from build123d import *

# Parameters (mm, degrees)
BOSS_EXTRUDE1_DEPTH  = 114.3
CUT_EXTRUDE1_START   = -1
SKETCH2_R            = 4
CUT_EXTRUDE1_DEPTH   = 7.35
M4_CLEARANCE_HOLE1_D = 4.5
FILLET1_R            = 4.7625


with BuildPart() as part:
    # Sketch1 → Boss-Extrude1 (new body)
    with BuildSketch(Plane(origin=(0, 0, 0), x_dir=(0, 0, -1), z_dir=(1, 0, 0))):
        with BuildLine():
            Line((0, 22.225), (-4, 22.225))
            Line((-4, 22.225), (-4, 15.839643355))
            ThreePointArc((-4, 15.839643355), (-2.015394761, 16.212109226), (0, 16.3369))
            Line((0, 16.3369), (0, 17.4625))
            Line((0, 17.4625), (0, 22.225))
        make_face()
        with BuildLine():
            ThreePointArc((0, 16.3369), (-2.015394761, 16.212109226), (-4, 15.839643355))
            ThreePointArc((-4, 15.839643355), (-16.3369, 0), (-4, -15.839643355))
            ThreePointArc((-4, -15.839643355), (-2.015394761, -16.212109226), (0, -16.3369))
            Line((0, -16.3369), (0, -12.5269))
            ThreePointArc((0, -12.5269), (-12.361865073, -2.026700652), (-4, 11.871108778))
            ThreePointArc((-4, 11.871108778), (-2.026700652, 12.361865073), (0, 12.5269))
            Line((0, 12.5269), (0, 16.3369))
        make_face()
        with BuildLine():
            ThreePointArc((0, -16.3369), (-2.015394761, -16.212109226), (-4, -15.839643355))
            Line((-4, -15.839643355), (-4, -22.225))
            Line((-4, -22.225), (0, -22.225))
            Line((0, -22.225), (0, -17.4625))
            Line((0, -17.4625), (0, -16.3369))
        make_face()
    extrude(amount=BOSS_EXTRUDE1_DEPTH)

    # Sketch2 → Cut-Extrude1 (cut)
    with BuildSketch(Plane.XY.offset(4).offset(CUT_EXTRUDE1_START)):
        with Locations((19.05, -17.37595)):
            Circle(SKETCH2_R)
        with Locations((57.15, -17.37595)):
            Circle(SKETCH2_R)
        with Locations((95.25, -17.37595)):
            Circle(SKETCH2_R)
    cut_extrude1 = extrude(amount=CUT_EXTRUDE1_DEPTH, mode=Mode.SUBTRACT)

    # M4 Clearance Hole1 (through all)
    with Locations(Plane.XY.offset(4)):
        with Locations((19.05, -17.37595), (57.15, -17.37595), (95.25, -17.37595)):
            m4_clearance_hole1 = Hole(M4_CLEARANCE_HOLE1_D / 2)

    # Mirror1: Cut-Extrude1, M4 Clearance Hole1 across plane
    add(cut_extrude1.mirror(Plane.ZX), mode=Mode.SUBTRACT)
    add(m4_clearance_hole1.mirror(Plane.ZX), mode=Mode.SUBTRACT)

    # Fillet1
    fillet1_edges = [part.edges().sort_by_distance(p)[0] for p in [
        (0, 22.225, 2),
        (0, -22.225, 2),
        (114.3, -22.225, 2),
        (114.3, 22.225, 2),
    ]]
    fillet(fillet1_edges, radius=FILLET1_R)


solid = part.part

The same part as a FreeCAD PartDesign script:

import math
import FreeCAD as App
import Part
import Sketcher
from FreeCAD import Vector


def edges_at(feature, points):
    """Names of the edges that pass closest to the given points."""
    edges = feature.Shape.Edges
    near = lambda p: min(range(len(edges)), key=lambda i: edges[i].distToShape(Part.Vertex(*p))[0])
    return sorted({f"Edge{near(p) + 1}" for p in points})

doc = App.newDocument("Part")
body = doc.addObject("PartDesign::Body", "Body")

# Sketch on YZ plane
sketch1 = body.newObject("Sketcher::SketchObject", "Sketch")
sketch1.AttachmentSupport = (doc.getObject("YZ_Plane"), [""])
sketch1.MapMode = "FlatFace"
sketch1.addGeometry(Part.LineSegment(Vector(22.2, 0, 0), Vector(22.2, 4, 0)), False)
sketch1.addGeometry(Part.LineSegment(Vector(22.2, 4, 0), Vector(15.8, 4, 0)), False)
sketch1.addGeometry(Part.ArcOfCircle(Part.Circle(Vector(0, 0, 0), Vector(0, 0, 1), 16.3), math.radians(14), math.radians(166)), False)
sketch1.addGeometry(Part.LineSegment(Vector(-15.8, 4, 0), Vector(-22.2, 4, 0)), False)
sketch1.addGeometry(Part.LineSegment(Vector(-22.2, 4, 0), Vector(-22.2, 0, 0)), False)
sketch1.addGeometry(Part.LineSegment(Vector(-22.2, 0, 0), Vector(-12.5, 0, 0)), False)
sketch1.addGeometry(Part.ArcOfCircle(Part.Circle(Vector(0, 0, 0), Vector(0, 0, 1), 12.5), math.radians(19), math.radians(180)), False)
sketch1.addGeometry(Part.ArcOfCircle(Part.Circle(Vector(0, 0, 0), Vector(0, 0, 1), 12.5), math.radians(0), math.radians(18.62)), False)
sketch1.addGeometry(Part.LineSegment(Vector(12.5, 0, 0), Vector(22.2, 0, 0)), False)
sketch1.addConstraint(Sketcher.Constraint("Coincident", 0, 2, 1, 1))
sketch1.addConstraint(Sketcher.Constraint("Coincident", 1, 2, 2, 1))
sketch1.addConstraint(Sketcher.Constraint("Coincident", 2, 2, 3, 1))
sketch1.addConstraint(Sketcher.Constraint("Coincident", 3, 2, 4, 1))
sketch1.addConstraint(Sketcher.Constraint("Coincident", 4, 2, 5, 1))
sketch1.addConstraint(Sketcher.Constraint("Coincident", 5, 2, 6, 2))
sketch1.addConstraint(Sketcher.Constraint("Tangent", 6, 1, 7, 2))
sketch1.addConstraint(Sketcher.Constraint("Coincident", 7, 1, 8, 1))
sketch1.addConstraint(Sketcher.Constraint("Coincident", 8, 2, 0, 1))
sketch1.addConstraint(Sketcher.Constraint("Vertical", 0))
sketch1.addConstraint(Sketcher.Constraint("Horizontal", 1))
sketch1.addConstraint(Sketcher.Constraint("Horizontal", 3))
sketch1.addConstraint(Sketcher.Constraint("Vertical", 4))
sketch1.addConstraint(Sketcher.Constraint("Horizontal", 5))
sketch1.addConstraint(Sketcher.Constraint("Horizontal", 8))
sketch1.addConstraint(Sketcher.Constraint("Coincident", 2, 3, -1, 1))
sketch1.addConstraint(Sketcher.Constraint("Coincident", 6, 3, -1, 1))
sketch1.addConstraint(Sketcher.Constraint("Equal", 6, 7))
sketch1.addConstraint(Sketcher.Constraint("Symmetric", 4, 2, 8, 2, -1, 1))
sketch1.addConstraint(Sketcher.Constraint("PointOnObject", 4, 2, -1))
sketch1.addConstraint(Sketcher.Constraint("Horizontal", 1, 2, 2, 2))
sketch1.addConstraint(Sketcher.Constraint("Horizontal", 3, 2, 6, 1))
sketch1.addConstraint(Sketcher.Constraint("DistanceY", 0, 1, 0, 2, 4.0))
sketch1.addConstraint(Sketcher.Constraint("Radius", 2, 16.3369))
sketch1.addConstraint(Sketcher.Constraint("Radius", 6, 12.5269))
sketch1.addConstraint(Sketcher.Constraint("DistanceX", 5, 1, 5, 2, 9.6981))
pad1 = body.newObject("PartDesign::Pad", "Pad")
pad1.Profile = sketch1
pad1.Length = 114.3

# Sketch on XY plane
sketch2 = body.newObject("Sketcher::SketchObject", "Sketch001")
sketch2.AttachmentSupport = (doc.getObject("XY_Plane"), [""])
sketch2.MapMode = "FlatFace"
sketch2.AttachmentOffset = App.Placement(Vector(0, 0, 3), App.Rotation())
sketch2.addGeometry(Part.Circle(Vector(19.1, -17.4, 0), Vector(0, 0, 1), 4), False)
sketch2.addGeometry(Part.Circle(Vector(57.1, -17.4, 0), Vector(0, 0, 1), 4), False)
sketch2.addGeometry(Part.Circle(Vector(95.2, -17.4, 0), Vector(0, 0, 1), 4), False)
sketch2.addConstraint(Sketcher.Constraint("Equal", 0, 1))
sketch2.addConstraint(Sketcher.Constraint("Equal", 1, 2))
sketch2.addConstraint(Sketcher.Constraint("Horizontal", 0, 3, 1, 3))
sketch2.addConstraint(Sketcher.Constraint("Horizontal", 1, 3, 2, 3))
sketch2.addConstraint(Sketcher.Constraint("Diameter", 0, 8.0))
sketch2.addConstraint(Sketcher.Constraint("DistanceX", 0, 3, 1, 3, 38.1))
sketch2.addConstraint(Sketcher.Constraint("DistanceX", 1, 3, 2, 3, 38.1))
sketch2.addConstraint(Sketcher.Constraint("DistanceX", -1, 1, 0, 3, 19.05))
sketch2.addConstraint(Sketcher.Constraint("DistanceY", 0, 3, -1, 1, 17.37595))
pocket1 = body.newObject("PartDesign::Pocket", "Pocket")
pocket1.Profile = sketch2
pocket1.Length = 7.35
pocket1.Reversed = True

# Sketch on XY plane
sketch3 = body.newObject("Sketcher::SketchObject", "Sketch002")
sketch3.AttachmentSupport = (doc.getObject("XY_Plane"), [""])
sketch3.MapMode = "FlatFace"
sketch3.AttachmentOffset = App.Placement(Vector(0, 0, 4), App.Rotation())
sketch3.addGeometry(Part.Circle(Vector(19.1, -17.4, 0), Vector(0, 0, 1), 2.2), False)
sketch3.addGeometry(Part.Circle(Vector(57.1, -17.4, 0), Vector(0, 0, 1), 2.2), False)
sketch3.addGeometry(Part.Circle(Vector(95.2, -17.4, 0), Vector(0, 0, 1), 2.2), False)
sketch3.addConstraint(Sketcher.Constraint("Equal", 0, 1))
sketch3.addConstraint(Sketcher.Constraint("Equal", 1, 2))
sketch3.addConstraint(Sketcher.Constraint("Horizontal", 0, 3, 1, 3))
sketch3.addConstraint(Sketcher.Constraint("Horizontal", 1, 3, 2, 3))
sketch3.addConstraint(Sketcher.Constraint("Diameter", 0, 4.5))
sketch3.addConstraint(Sketcher.Constraint("DistanceX", 0, 3, 1, 3, 38.1))
sketch3.addConstraint(Sketcher.Constraint("DistanceX", 1, 3, 2, 3, 38.1))
sketch3.addConstraint(Sketcher.Constraint("DistanceX", -1, 1, 0, 3, 19.05))
sketch3.addConstraint(Sketcher.Constraint("DistanceY", 0, 3, -1, 1, 17.37595))
doc.recompute()
hole = body.newObject("PartDesign::Hole", "Hole")
hole.Profile = sketch3
hole.ThreadType = "None"
hole.Diameter = 4.5
hole.DepthType = "ThroughAll"
doc.recompute()

mirrored = body.newObject("PartDesign::Mirrored", "Mirrored")
mirrored.Originals = [pocket1, hole]
mirrored.MirrorPlane = (doc.getObject("XZ_Plane"), [""])
body.Tip = mirrored
doc.recompute()

fillet = body.newObject("PartDesign::Fillet", "Fillet")
fillet.Base = (mirrored, edges_at(mirrored, [
    (0, 22.225, 2),
    (0, -22.225, 2),
    (114.3, -22.225, 2),
    (114.3, 22.225, 2),
]))
fillet.Radius = 4.7625

doc.recompute()
